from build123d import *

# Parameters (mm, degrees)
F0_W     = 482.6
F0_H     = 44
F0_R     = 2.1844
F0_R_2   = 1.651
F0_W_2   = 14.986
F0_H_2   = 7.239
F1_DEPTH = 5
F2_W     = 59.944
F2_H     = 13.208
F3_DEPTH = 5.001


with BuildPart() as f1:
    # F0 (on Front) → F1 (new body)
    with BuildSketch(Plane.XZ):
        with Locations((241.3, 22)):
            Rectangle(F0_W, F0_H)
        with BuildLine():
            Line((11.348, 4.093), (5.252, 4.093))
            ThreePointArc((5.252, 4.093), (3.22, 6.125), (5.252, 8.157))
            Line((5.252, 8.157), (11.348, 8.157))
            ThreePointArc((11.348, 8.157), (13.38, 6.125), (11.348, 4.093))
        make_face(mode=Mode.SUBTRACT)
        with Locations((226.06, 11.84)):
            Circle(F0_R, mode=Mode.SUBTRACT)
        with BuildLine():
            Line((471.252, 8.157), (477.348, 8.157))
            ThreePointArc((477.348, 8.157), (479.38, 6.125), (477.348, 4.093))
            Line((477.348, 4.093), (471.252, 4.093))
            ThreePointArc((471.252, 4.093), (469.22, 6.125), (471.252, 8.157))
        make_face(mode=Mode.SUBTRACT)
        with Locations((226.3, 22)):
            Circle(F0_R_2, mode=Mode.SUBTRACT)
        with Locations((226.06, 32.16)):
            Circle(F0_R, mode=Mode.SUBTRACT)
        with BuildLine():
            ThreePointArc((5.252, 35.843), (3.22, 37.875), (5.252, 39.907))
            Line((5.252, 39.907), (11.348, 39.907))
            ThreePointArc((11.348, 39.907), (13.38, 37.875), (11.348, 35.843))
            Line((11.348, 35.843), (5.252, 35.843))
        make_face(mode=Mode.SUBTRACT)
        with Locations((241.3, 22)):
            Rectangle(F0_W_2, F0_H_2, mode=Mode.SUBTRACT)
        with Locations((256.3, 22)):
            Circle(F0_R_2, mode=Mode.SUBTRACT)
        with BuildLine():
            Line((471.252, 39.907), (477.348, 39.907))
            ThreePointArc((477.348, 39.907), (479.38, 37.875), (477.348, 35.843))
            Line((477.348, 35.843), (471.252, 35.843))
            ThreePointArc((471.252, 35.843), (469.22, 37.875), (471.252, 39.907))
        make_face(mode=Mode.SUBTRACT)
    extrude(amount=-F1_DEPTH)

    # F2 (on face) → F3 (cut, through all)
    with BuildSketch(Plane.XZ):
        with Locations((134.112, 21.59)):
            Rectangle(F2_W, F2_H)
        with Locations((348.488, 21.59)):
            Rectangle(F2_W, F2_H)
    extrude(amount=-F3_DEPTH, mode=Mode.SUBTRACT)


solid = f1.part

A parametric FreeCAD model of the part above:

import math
import FreeCAD as App
import Part
import Sketcher
from FreeCAD import Vector
Q = App.Units.Quantity


def add_polygon(sketch, points):
    """Adds a closed chain of lines whose ends are joined by coincident constraints."""
    first, n = sketch.GeometryCount, len(points)
    for a, b in zip(points, points[1:] + points[:1]):
        sketch.addGeometry(Part.LineSegment(App.Vector(*a, 0), App.Vector(*b, 0)), False)
    for i in range(n):
        sketch.addConstraint(Sketcher.Constraint("Coincident", first + i, 2, first + (i + 1) % n, 1))

doc = App.newDocument("Part")
body = doc.addObject("PartDesign::Body", "Body")

# Sketch on XZ plane
sketch1 = body.newObject("Sketcher::SketchObject", "Sketch")
sketch1.AttachmentSupport = (doc.getObject("XZ_Plane"), [""])
sketch1.MapMode = "FlatFace"
add_polygon(sketch1, [(0, 44), (0, 0), (482.6, 0), (482.6, 44)])  # lines 0-3
sketch1.addGeometry(Part.ArcOfCircle(Part.Circle(Vector(11.3, 6.1, 0), Vector(0, 0, 1), 2), math.radians(-90), math.radians(90)), False)  # 4
sketch1.addGeometry(Part.LineSegment(Vector(11.3, 4.1, 0), Vector(5.3, 4.1, 0)), False)  # 5
sketch1.addGeometry(Part.ArcOfCircle(Part.Circle(Vector(5.3, 6.1, 0), Vector(0, 0, 1), 2), math.radians(90), math.radians(270)), False)  # 6
sketch1.addGeometry(Part.LineSegment(Vector(5.3, 8.2, 0), Vector(11.3, 8.2, 0)), False)  # 7
sketch1.addGeometry(Part.Circle(Vector(226.1, 11.8, 0), Vector(0, 0, 1), 2.2), False)  # 8
sketch1.addGeometry(Part.ArcOfCircle(Part.Circle(Vector(471.3, 6.1, 0), Vector(0, 0, 1), 2), math.radians(90), math.radians(270)), False)  # 9
sketch1.addGeometry(Part.LineSegment(Vector(471.3, 8.2, 0), Vector(477.3, 8.2, 0)), False)  # 10
sketch1.addGeometry(Part.ArcOfCircle(Part.Circle(Vector(477.3, 6.1, 0), Vector(0, 0, 1), 2), math.radians(-90), math.radians(90)), False)  # 11
sketch1.addGeometry(Part.LineSegment(Vector(477.3, 4.1, 0), Vector(471.3, 4.1, 0)), False)  # 12
sketch1.addGeometry(Part.Circle(Vector(226.3, 22, 0), Vector(0, 0, 1), 1.7), False)  # 13
sketch1.addGeometry(Part.LineSegment(Vector(11.3, 35.8, 0), Vector(5.3, 35.8, 0)), False)  # 14
sketch1.addGeometry(Part.ArcOfCircle(Part.Circle(Vector(5.3, 37.9, 0), Vector(0, 0, 1), 2), math.radians(90), math.radians(270)), False)  # 15
sketch1.addGeometry(Part.LineSegment(Vector(5.3, 39.9, 0), Vector(11.3, 39.9, 0)), False)  # 16
sketch1.addGeometry(Part.ArcOfCircle(Part.Circle(Vector(11.3, 37.9, 0), Vector(0, 0, 1), 2), math.radians(-90), math.radians(90)), False)  # 17
sketch1.addGeometry(Part.Circle(Vector(226.1, 32.2, 0), Vector(0, 0, 1), 2.2), False)  # 18
add_polygon(sketch1, [(248.8, 18.4), (233.8, 18.4), (233.8, 25.6), (248.8, 25.6)])  # lines 19-22
sketch1.addGeometry(Part.Circle(Vector(256.3, 22, 0), Vector(0, 0, 1), 1.7), False)  # 23
sketch1.addGeometry(Part.ArcOfCircle(Part.Circle(Vector(471.3, 37.9, 0), Vector(0, 0, 1), 2), math.radians(90), math.radians(270)), False)  # 24
sketch1.addGeometry(Part.LineSegment(Vector(471.3, 39.9, 0), Vector(477.3, 39.9, 0)), False)  # 25
sketch1.addGeometry(Part.ArcOfCircle(Part.Circle(Vector(477.3, 37.9, 0), Vector(0, 0, 1), 2), math.radians(-90), math.radians(90)), False)  # 26
sketch1.addGeometry(Part.LineSegment(Vector(477.3, 35.8, 0), Vector(471.3, 35.8, 0)), False)  # 27
sketch1.addConstraint([
    Sketcher.Constraint("Tangent", 4, 1, 5, 1),
    Sketcher.Constraint("Tangent", 5, 2, 6, 2),
    Sketcher.Constraint("Tangent", 6, 1, 7, 1),
    Sketcher.Constraint("Tangent", 7, 2, 4, 2),
    Sketcher.Constraint("Tangent", 9, 1, 10, 1),
    Sketcher.Constraint("Tangent", 10, 2, 11, 2),
    Sketcher.Constraint("Tangent", 11, 1, 12, 1),
    Sketcher.Constraint("Tangent", 12, 2, 9, 2),
    Sketcher.Constraint("Tangent", 14, 2, 15, 2),
    Sketcher.Constraint("Tangent", 15, 1, 16, 1),
    Sketcher.Constraint("Tangent", 16, 2, 17, 2),
    Sketcher.Constraint("Tangent", 17, 1, 14, 1),
    Sketcher.Constraint("Tangent", 24, 1, 25, 1),
    Sketcher.Constraint("Tangent", 25, 2, 26, 2),
    Sketcher.Constraint("Tangent", 26, 1, 27, 1),
    Sketcher.Constraint("Tangent", 27, 2, 24, 2),
    Sketcher.Constraint("Vertical", 0),
    Sketcher.Constraint("Horizontal", 1),
    Sketcher.Constraint("Vertical", 2),
    Sketcher.Constraint("Horizontal", 3),
    Sketcher.Constraint("Horizontal", 5),
    Sketcher.Constraint("Horizontal", 7),
    Sketcher.Constraint("Horizontal", 10),
    Sketcher.Constraint("Horizontal", 12),
    Sketcher.Constraint("Horizontal", 14),
    Sketcher.Constraint("Horizontal", 16),
    Sketcher.Constraint("Horizontal", 19),
    Sketcher.Constraint("Vertical", 20),
    Sketcher.Constraint("Horizontal", 21),
    Sketcher.Constraint("Vertical", 22),
    Sketcher.Constraint("Horizontal", 25),
    Sketcher.Constraint("Horizontal", 27),
    Sketcher.Constraint("Coincident", 0, 2, -1, 1),
    Sketcher.Constraint("Equal", 6, 9),
    Sketcher.Constraint("Equal", 11, 15),
    Sketcher.Constraint("Equal", 8, 18),
    Sketcher.Constraint("Equal", 13, 23),
    Sketcher.Constraint("Equal", 17, 24),
    Sketcher.Constraint("Horizontal", 6, 3, 9, 3),
    Sketcher.Constraint("Horizontal", 13, 3, 23, 3),
    Sketcher.Constraint("Horizontal", 17, 3, 24, 3),
    Sketcher.Constraint("Vertical", 6, 3, 15, 3),
    Sketcher.Constraint("Vertical", 4, 3, 17, 3),
    Sketcher.Constraint("Vertical", 8, 3, 18, 3),
    Sketcher.Constraint("Vertical", 9, 3, 24, 3),
    Sketcher.Constraint("Vertical", 11, 3, 26, 3),
    Sketcher.Constraint("Equal", 7, 10),
    Sketcher.Constraint("Diameter", 13, Q("0.13 in")),
    Sketcher.Constraint("DistanceX", 1, 1, 1, 2, Q("19 in")),
    Sketcher.Constraint("Radius", 4, Q("0.08 in")),
    Sketcher.Constraint("Diameter", 8, Q("0.172 in")),
    Sketcher.Constraint("DistanceX", 5, 2, 5, 1, Q("0.24 in")),
    Sketcher.Constraint("DistanceX", 19, 2, 19, 1, Q("0.59 in")),
    Sketcher.Constraint("DistanceX", -1, 1, 8, 3, Q("8.9 in")),
    Sketcher.Constraint("DistanceY", 8, 3, 13, 3, Q("0.4 in")),
    Sketcher.Constraint("DistanceY", 13, 3, 18, 3, Q("0.4 in")),
    Sketcher.Constraint("DistanceY", 20, 1, 20, 2, Q("0.285 in")),
    Sketcher.Constraint("DistanceY", 6, 3, 15, 3, Q("1.25 in")),
    Sketcher.Constraint("DistanceX", -1, 1, 19, 2, Q("9.205 in")),
    Sketcher.Constraint("DistanceY", 4, 3, 8, 3, Q("0.225 in")),
    Sketcher.Constraint("DistanceY", 0, 2, 0, 1, 44.0),
    Sketcher.Constraint("DistanceY", 19, 2, 13, 3, Q("0.1425 in")),
    Sketcher.Constraint("DistanceX", -1, 1, 4, 3, 11.348),
    Sketcher.Constraint("DistanceY", -1, 1, 4, 3, 6.125),
    Sketcher.Constraint("DistanceX", -1, 1, 9, 3, 471.252),
    Sketcher.Constraint("DistanceX", -1, 1, 13, 3, 226.3),
    Sketcher.Constraint("DistanceX", -1, 1, 23, 3, 256.3),
])
pad1 = body.newObject("PartDesign::Pad", "Pad")
pad1.Profile = sketch1
pad1.Length = 5
pad1.Reversed = True

# Sketch on XZ plane
sketch2 = body.newObject("Sketcher::SketchObject", "Sketch001")
sketch2.AttachmentSupport = (doc.getObject("XZ_Plane"), [""])
sketch2.MapMode = "FlatFace"
add_polygon(sketch2, [(104, 28), (104, 15), (164, 15), (164, 28)])  # lines 0-3
add_polygon(sketch2, [(319, 28), (319, 15), (378, 15), (378, 28)])  # lines 4-7
sketch2.addConstraint([
    Sketcher.Constraint("Vertical", 0),
    Sketcher.Constraint("Horizontal", 1),
    Sketcher.Constraint("Vertical", 2),
    Sketcher.Constraint("Horizontal", 3),
    Sketcher.Constraint("Vertical", 4),
    Sketcher.Constraint("Horizontal", 5),
    Sketcher.Constraint("Vertical", 6),
    Sketcher.Constraint("Horizontal", 7),
    Sketcher.Constraint("Horizontal", 1, 2, 4, 2),
    Sketcher.Constraint("Horizontal", 3, 2, 6, 2),
    Sketcher.Constraint("Equal", 3, 5),
    Sketcher.Constraint("DistanceX", 1, 1, 1, 2, Q("2.36 in")),
    Sketcher.Constraint("DistanceY", 0, 2, 0, 1, Q("0.52 in")),
    Sketcher.Constraint("DistanceX", -1, 1, 0, 2, Q("4.1 in")),
    Sketcher.Constraint("DistanceX", -1, 1, 5, 2, Q("14.9 in")),
    Sketcher.Constraint("DistanceY", -1, 1, 0, 2, Q("0.59 in")),
])
pocket1 = body.newObject("PartDesign::Pocket", "Pocket")
pocket1.Profile = sketch2
pocket1.Type = "ThroughAll"

doc.recompute()
